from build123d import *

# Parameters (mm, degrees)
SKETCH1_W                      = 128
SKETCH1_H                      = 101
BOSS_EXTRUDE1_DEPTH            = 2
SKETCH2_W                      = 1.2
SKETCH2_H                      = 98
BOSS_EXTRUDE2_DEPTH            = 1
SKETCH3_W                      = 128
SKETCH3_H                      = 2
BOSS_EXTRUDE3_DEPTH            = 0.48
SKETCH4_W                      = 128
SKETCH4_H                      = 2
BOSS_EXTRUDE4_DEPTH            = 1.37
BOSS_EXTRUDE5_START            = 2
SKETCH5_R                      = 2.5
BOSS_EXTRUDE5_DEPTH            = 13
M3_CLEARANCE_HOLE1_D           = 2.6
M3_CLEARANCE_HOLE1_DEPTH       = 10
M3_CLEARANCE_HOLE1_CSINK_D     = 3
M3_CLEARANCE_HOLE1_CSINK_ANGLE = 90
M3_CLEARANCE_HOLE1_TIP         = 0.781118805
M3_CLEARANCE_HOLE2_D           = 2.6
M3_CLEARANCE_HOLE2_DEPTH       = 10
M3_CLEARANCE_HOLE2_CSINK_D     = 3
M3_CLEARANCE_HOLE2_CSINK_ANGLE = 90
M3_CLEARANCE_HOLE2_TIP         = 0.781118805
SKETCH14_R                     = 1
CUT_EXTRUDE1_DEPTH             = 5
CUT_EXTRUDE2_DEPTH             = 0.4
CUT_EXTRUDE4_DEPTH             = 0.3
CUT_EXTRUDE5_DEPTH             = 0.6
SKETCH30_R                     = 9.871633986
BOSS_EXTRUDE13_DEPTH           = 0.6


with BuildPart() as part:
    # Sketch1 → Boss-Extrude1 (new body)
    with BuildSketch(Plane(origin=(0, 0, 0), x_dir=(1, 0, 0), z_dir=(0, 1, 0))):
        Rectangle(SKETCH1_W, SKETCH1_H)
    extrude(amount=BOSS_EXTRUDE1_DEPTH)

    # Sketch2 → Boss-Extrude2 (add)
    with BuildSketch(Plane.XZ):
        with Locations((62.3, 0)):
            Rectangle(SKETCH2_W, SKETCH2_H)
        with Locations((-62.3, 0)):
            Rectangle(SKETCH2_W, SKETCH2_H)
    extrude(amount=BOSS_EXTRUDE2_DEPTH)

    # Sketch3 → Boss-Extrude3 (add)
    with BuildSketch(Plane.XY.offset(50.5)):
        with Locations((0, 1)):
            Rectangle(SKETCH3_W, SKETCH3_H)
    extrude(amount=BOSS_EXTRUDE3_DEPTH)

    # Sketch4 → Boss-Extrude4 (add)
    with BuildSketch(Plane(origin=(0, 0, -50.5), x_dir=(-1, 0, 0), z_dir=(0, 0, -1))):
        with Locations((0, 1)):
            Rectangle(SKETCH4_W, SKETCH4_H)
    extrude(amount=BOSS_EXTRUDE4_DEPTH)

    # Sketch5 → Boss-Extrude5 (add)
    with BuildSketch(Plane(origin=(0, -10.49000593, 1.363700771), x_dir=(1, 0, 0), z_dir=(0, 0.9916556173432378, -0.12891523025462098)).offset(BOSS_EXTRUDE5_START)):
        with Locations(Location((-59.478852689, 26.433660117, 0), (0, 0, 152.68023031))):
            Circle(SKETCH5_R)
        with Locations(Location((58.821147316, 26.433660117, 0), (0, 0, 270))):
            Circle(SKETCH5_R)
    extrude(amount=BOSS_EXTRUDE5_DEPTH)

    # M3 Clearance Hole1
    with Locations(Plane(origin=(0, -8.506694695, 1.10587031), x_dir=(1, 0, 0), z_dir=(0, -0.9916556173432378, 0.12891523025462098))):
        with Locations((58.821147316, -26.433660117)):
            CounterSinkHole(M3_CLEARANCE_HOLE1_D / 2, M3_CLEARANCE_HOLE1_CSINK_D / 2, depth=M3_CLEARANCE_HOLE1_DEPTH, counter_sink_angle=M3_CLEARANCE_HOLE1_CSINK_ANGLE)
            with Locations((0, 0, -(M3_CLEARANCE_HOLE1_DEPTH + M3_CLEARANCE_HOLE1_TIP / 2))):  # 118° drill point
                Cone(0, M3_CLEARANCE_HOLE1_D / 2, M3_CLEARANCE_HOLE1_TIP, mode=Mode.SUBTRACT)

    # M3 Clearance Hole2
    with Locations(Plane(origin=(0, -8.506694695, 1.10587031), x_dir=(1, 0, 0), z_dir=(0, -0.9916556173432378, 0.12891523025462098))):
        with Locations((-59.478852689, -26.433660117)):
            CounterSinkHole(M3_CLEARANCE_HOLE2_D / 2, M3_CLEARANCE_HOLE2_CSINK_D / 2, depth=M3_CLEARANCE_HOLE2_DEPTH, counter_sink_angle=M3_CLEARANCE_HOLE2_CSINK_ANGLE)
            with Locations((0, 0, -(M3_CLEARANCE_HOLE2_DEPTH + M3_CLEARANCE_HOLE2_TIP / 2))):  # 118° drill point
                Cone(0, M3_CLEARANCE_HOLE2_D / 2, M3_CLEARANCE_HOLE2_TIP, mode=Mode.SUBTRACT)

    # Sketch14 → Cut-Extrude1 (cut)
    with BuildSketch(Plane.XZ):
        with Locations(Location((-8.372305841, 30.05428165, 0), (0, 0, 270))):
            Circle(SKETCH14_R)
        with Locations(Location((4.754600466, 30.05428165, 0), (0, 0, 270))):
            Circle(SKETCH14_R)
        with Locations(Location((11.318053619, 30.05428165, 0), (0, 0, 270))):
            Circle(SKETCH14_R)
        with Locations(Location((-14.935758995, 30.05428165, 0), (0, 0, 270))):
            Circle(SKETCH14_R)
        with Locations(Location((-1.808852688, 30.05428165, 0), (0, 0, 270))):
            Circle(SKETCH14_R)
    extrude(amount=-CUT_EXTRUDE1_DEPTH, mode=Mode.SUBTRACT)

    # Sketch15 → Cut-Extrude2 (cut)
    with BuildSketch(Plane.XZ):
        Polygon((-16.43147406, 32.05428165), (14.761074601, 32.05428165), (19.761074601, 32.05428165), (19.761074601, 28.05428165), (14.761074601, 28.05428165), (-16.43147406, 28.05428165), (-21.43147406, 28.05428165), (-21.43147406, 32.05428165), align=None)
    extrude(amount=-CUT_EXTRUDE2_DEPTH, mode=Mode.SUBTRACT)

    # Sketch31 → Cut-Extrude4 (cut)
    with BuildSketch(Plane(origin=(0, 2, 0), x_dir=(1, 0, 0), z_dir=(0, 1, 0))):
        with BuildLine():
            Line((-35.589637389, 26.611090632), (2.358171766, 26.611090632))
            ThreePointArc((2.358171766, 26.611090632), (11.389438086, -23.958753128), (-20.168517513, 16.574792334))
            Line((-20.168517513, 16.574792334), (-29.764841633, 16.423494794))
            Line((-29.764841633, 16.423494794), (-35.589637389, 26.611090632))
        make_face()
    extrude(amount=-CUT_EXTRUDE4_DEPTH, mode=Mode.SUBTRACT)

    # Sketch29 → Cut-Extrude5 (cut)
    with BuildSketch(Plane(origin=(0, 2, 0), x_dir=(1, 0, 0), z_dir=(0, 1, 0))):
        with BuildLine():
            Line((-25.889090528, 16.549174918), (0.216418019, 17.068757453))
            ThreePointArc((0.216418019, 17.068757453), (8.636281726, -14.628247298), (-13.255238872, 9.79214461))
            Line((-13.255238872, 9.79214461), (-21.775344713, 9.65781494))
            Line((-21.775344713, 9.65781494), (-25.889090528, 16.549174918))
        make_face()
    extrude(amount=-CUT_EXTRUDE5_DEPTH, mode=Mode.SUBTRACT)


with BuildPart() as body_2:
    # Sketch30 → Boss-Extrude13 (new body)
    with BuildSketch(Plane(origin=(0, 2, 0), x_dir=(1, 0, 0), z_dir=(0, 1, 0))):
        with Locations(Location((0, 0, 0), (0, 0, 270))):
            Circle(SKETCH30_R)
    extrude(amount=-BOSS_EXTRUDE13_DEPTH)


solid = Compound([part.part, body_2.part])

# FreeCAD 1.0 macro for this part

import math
import FreeCAD as App
import Part
import Sketcher
from FreeCAD import Vector
Q = App.Units.Quantity

doc = App.newDocument("Part")
body = doc.addObject("PartDesign::Body", "Body")

# Sketch on XZ plane
sketch1 = doc.addObject("Sketcher::SketchObject", "Sketch")
body.addObject(sketch1)
sketch1.AttachmentSupport = (doc.XZ_Plane, [""])
sketch1.MapMode = "FlatFace"
sketch1.addGeometry(Part.LineSegment(Vector(-64, -50.5, 0), Vector(-64, 50.5, 0)), False)
sketch1.addGeometry(Part.LineSegment(Vector(-64, 50.5, 0), Vector(64, 50.5, 0)), False)
sketch1.addGeometry(Part.LineSegment(Vector(64, 50.5, 0), Vector(64, -50.5, 0)), False)
sketch1.addGeometry(Part.LineSegment(Vector(64, -50.5, 0), Vector(-64, -50.5, 0)), False)
sketch1.addConstraint(Sketcher.Constraint("Coincident", 0, 2, 1, 1))
sketch1.addConstraint(Sketcher.Constraint("Coincident", 1, 2, 2, 1))
sketch1.addConstraint(Sketcher.Constraint("Coincident", 2, 2, 3, 1))
sketch1.addConstraint(Sketcher.Constraint("Coincident", 3, 2, 0, 1))
sketch1.addConstraint(Sketcher.Constraint("Vertical", 0))
sketch1.addConstraint(Sketcher.Constraint("Horizontal", 1))
sketch1.addConstraint(Sketcher.Constraint("Vertical", 2))
sketch1.addConstraint(Sketcher.Constraint("Horizontal", 3))
sketch1.addConstraint(Sketcher.Constraint("Symmetric", 0, 2, 2, 2, -1, 1))
sketch1.addConstraint(Sketcher.Constraint("DistanceX", 1, 1, 1, 2, Q("128 mm")))
sketch1.addConstraint(Sketcher.Constraint("DistanceY", 0, 1, 0, 2, Q("101 mm")))
pad1 = doc.addObject("PartDesign::Pad", "Pad")
body.addObject(pad1)
pad1.Profile = sketch1
pad1.Length = 2
pad1.Reversed = True

# Sketch on XZ plane
sketch2 = doc.addObject("Sketcher::SketchObject", "Sketch001")
body.addObject(sketch2)
sketch2.AttachmentSupport = (doc.XZ_Plane, [""])
sketch2.MapMode = "FlatFace"
sketch2.addGeometry(Part.LineSegment(Vector(61.7, 49, 0), Vector(61.7, -49, 0)), False)
sketch2.addGeometry(Part.LineSegment(Vector(61.7, -49, 0), Vector(62.9, -49, 0)), False)
sketch2.addGeometry(Part.LineSegment(Vector(62.9, -49, 0), Vector(62.9, 49, 0)), False)
sketch2.addGeometry(Part.LineSegment(Vector(62.9, 49, 0), Vector(61.7, 49, 0)), False)
sketch2.addGeometry(Part.LineSegment(Vector(-62.9, 49, 0), Vector(-62.9, -49, 0)), False)
sketch2.addGeometry(Part.LineSegment(Vector(-62.9, -49, 0), Vector(-61.7, -49, 0)), False)
sketch2.addGeometry(Part.LineSegment(Vector(-61.7, -49, 0), Vector(-61.7, 49, 0)), False)
sketch2.addGeometry(Part.LineSegment(Vector(-61.7, 49, 0), Vector(-62.9, 49, 0)), False)
sketch2.addConstraint(Sketcher.Constraint("Coincident", 0, 2, 1, 1))
sketch2.addConstraint(Sketcher.Constraint("Coincident", 1, 2, 2, 1))
sketch2.addConstraint(Sketcher.Constraint("Coincident", 2, 2, 3, 1))
sketch2.addConstraint(Sketcher.Constraint("Coincident", 3, 2, 0, 1))
sketch2.addConstraint(Sketcher.Constraint("Coincident", 4, 2, 5, 1))
sketch2.addConstraint(Sketcher.Constraint("Coincident", 5, 2, 6, 1))
sketch2.addConstraint(Sketcher.Constraint("Coincident", 6, 2, 7, 1))
sketch2.addConstraint(Sketcher.Constraint("Coincident", 7, 2, 4, 1))
sketch2.addConstraint(Sketcher.Constraint("Vertical", 0))
sketch2.addConstraint(Sketcher.Constraint("Horizontal", 1))
sketch2.addConstraint(Sketcher.Constraint("Vertical", 2))
sketch2.addConstraint(Sketcher.Constraint("Horizontal", 3))
sketch2.addConstraint(Sketcher.Constraint("Vertical", 4))
sketch2.addConstraint(Sketcher.Constraint("Horizontal", 5))
sketch2.addConstraint(Sketcher.Constraint("Vertical", 6))
sketch2.addConstraint(Sketcher.Constraint("Horizontal", 7))
sketch2.addConstraint(Sketcher.Constraint("Symmetric", 2, 2, 4, 2, -1, 1))
sketch2.addConstraint(Sketcher.Constraint("Symmetric", 0, 2, 6, 2, -1, 1))
sketch2.addConstraint(Sketcher.Constraint("Horizontal", 1, 2, 4, 2))
sketch2.addConstraint(Sketcher.Constraint("DistanceY", 0, 2, 0, 1, Q("98 mm")))
sketch2.addConstraint(Sketcher.Constraint("DistanceX", 1, 1, 1, 2, Q("1.2 mm")))
sketch2.addConstraint(Sketcher.Constraint("DistanceX", -1, 1, 0, 2, Q("61.7 mm")))
pad2 = doc.addObject("PartDesign::Pad", "Pad001")
body.addObject(pad2)
pad2.Profile = sketch2
pad2.Length = 1

# Sketch on XY plane
sketch3 = doc.addObject("Sketcher::SketchObject", "Sketch002")
body.addObject(sketch3)
sketch3.AttachmentSupport = (doc.XY_Plane, [""])
sketch3.MapMode = "FlatFace"
sketch3.AttachmentOffset = App.Placement(Vector(0, 0, 50.5), App.Rotation())
sketch3.addGeometry(Part.LineSegment(Vector(-64, 2, 0), Vector(-64, 0, 0)), False)
sketch3.addGeometry(Part.LineSegment(Vector(-64, 0, 0), Vector(64, 0, 0)), False)
sketch3.addGeometry(Part.LineSegment(Vector(64, 0, 0), Vector(64, 2, 0)), False)
sketch3.addGeometry(Part.LineSegment(Vector(64, 2, 0), Vector(-64, 2, 0)), False)
sketch3.addConstraint(Sketcher.Constraint("Coincident", 0, 2, 1, 1))
sketch3.addConstraint(Sketcher.Constraint("Coincident", 1, 2, 2, 1))
sketch3.addConstraint(Sketcher.Constraint("Coincident", 2, 2, 3, 1))
sketch3.addConstraint(Sketcher.Constraint("Coincident", 3, 2, 0, 1))
sketch3.addConstraint(Sketcher.Constraint("Vertical", 0))
sketch3.addConstraint(Sketcher.Constraint("Horizontal", 1))
sketch3.addConstraint(Sketcher.Constraint("Vertical", 2))
sketch3.addConstraint(Sketcher.Constraint("Horizontal", 3))
sketch3.addConstraint(Sketcher.Constraint("Symmetric", 0, 2, 1, 2, -1, 1))
sketch3.addConstraint(Sketcher.Constraint("DistanceX", 1, 1, 1, 2, Q("128 mm")))
sketch3.addConstraint(Sketcher.Constraint("DistanceY", 0, 2, 0, 1, Q("2 mm")))
pad3 = doc.addObject("PartDesign::Pad", "Pad002")
body.addObject(pad3)
pad3.Profile = sketch3
pad3.Length = 0.48

# Sketch on XY plane
sketch4 = doc.addObject("Sketcher::SketchObject", "Sketch003")
body.addObject(sketch4)
sketch4.AttachmentSupport = (doc.XY_Plane, [""])
sketch4.MapMode = "FlatFace"
sketch4.AttachmentOffset = App.Placement(Vector(0, 0, -50.5), App.Rotation())
sketch4.addGeometry(Part.LineSegment(Vector(64, 2, 0), Vector(64, 0, 0)), False)
sketch4.addGeometry(Part.LineSegment(Vector(64, 0, 0), Vector(-64, 0, 0)), False)
sketch4.addGeometry(Part.LineSegment(Vector(-64, 0, 0), Vector(-64, 2, 0)), False)
sketch4.addGeometry(Part.LineSegment(Vector(-64, 2, 0), Vector(64, 2, 0)), False)
sketch4.addConstraint(Sketcher.Constraint("Coincident", 0, 2, 1, 1))
sketch4.addConstraint(Sketcher.Constraint("Coincident", 1, 2, 2, 1))
sketch4.addConstraint(Sketcher.Constraint("Coincident", 2, 2, 3, 1))
sketch4.addConstraint(Sketcher.Constraint("Coincident", 3, 2, 0, 1))
sketch4.addConstraint(Sketcher.Constraint("Vertical", 0))
sketch4.addConstraint(Sketcher.Constraint("Horizontal", 1))
sketch4.addConstraint(Sketcher.Constraint("Vertical", 2))
sketch4.addConstraint(Sketcher.Constraint("Horizontal", 3))
sketch4.addConstraint(Sketcher.Constraint("Symmetric", 0, 2, 1, 2, -1, 1))
sketch4.addConstraint(Sketcher.Constraint("DistanceX", 1, 2, 1, 1, Q("128 mm")))
sketch4.addConstraint(Sketcher.Constraint("DistanceY", 0, 2, 0, 1, Q("2 mm")))
pad4 = doc.addObject("PartDesign::Pad", "Pad003")
body.addObject(pad4)
pad4.Profile = sketch4
pad4.Length = 1.37
pad4.Reversed = True

# Sketch on an angled plane
sketch5 = doc.addObject("Sketcher::SketchObject", "Sketch004")
body.addObject(sketch5)
sketch5.Placement = App.Placement(Vector(0, -8.506695, 1.10587), App.Rotation(Vector(1, 0, 0), Vector(0, -0.12891523, -0.991655617), Vector(0, 0.991655617, -0.12891523), "ZXY"))
sketch5.addGeometry(Part.Circle(Vector(-59.478853, 26.43366, 0), Vector(0, 0, 1), 2.5), False)
sketch5.addGeometry(Part.Circle(Vector(58.821147, 26.43366, 0), Vector(0, 0, 1), 2.5), False)
sketch5.addConstraint(Sketcher.Constraint("Equal", 0, 1))
sketch5.addConstraint(Sketcher.Constraint("Horizontal", 0, 3, 1, 3))
sketch5.addConstraint(Sketcher.Constraint("Diameter", 0, Q("5 mm")))
sketch5.addConstraint(Sketcher.Constraint("DistanceX", 0, 3, 1, 3, Q("118.3 mm")))
sketch5.addConstraint(Sketcher.Constraint("DistanceY", -1, 1, 0, 3, Q("26.43366 mm")))
sketch5.addConstraint(Sketcher.Constraint("DistanceX", 0, 3, -1, 1, Q("59.478853 mm")))
pad5 = doc.addObject("PartDesign::Pad", "Pad004")
body.addObject(pad5)
pad5.Profile = sketch5
pad5.Length = 13

# Sketch on an angled plane
sketch6 = doc.addObject("Sketcher::SketchObject", "Sketch005")
body.addObject(sketch6)
sketch6.Placement = App.Placement(Vector(0, -8.506695, 1.10587), App.Rotation(Vector(1, 0, 0), Vector(0, 0.12891523, 0.991655617), Vector(0, -0.991655617, 0.12891523), "ZXY"))
sketch6.addGeometry(Part.Circle(Vector(58.821147, -26.43366, 0), Vector(0, 0, 1), 1.3), False)
sketch6.addConstraint(Sketcher.Constraint("Diameter", 0, Q("2.6 mm")))
sketch6.addConstraint(Sketcher.Constraint("DistanceY", 0, 3, -1, 1, Q("26.43366 mm")))
sketch6.addConstraint(Sketcher.Constraint("DistanceX", -1, 1, 0, 3, Q("58.821147 mm")))
doc.recompute()
hole = doc.addObject("PartDesign::Hole", "Hole")
body.addObject(hole)
hole.Profile = sketch6
hole.ThreadType = "None"
hole.Diameter = 2.6
hole.DepthType = "Dimension"
hole.Depth = 10
hole.DrillPoint = "Angled"
hole.DrillPointAngle = 118
hole.HoleCutType = "Countersink"
hole.HoleCutDiameter = 3
hole.HoleCutCountersinkAngle = 90

# Sketch on an angled plane
sketch7 = doc.addObject("Sketcher::SketchObject", "Sketch006")
body.addObject(sketch7)
sketch7.Placement = App.Placement(Vector(0, -8.506695, 1.10587), App.Rotation(Vector(1, 0, 0), Vector(0, 0.12891523, 0.991655617), Vector(0, -0.991655617, 0.12891523), "ZXY"))
sketch7.addGeometry(Part.Circle(Vector(-59.478853, -26.43366, 0), Vector(0, 0, 1), 1.3), False)
sketch7.addConstraint(Sketcher.Constraint("Diameter", 0, Q("2.6 mm")))
sketch7.addConstraint(Sketcher.Constraint("DistanceY", 0, 3, -1, 1, Q("26.43366 mm")))
sketch7.addConstraint(Sketcher.Constraint("DistanceX", 0, 3, -1, 1, Q("59.478853 mm")))
doc.recompute()
hole2 = doc.addObject("PartDesign::Hole", "Hole001")
body.addObject(hole2)
hole2.Profile = sketch7
hole2.ThreadType = "None"
hole2.Diameter = 2.6
hole2.DepthType = "Dimension"
hole2.Depth = 10
hole2.DrillPoint = "Angled"
hole2.DrillPointAngle = 118
hole2.HoleCutType = "Countersink"
hole2.HoleCutDiameter = 3
hole2.HoleCutCountersinkAngle = 90

# Sketch on XZ plane
sketch8 = doc.addObject("Sketcher::SketchObject", "Sketch007")
body.addObject(sketch8)
sketch8.AttachmentSupport = (doc.XZ_Plane, [""])
sketch8.MapMode = "FlatFace"
sketch8.addGeometry(Part.Circle(Vector(-8.372306, 30.054282, 0), Vector(0, 0, 1), 1), False)
sketch8.addGeometry(Part.Circle(Vector(4.7546, 30.054282, 0), Vector(0, 0, 1), 1), False)
sketch8.addGeometry(Part.Circle(Vector(11.318054, 30.054282, 0), Vector(0, 0, 1), 1), False)
sketch8.addGeometry(Part.Circle(Vector(-14.935759, 30.054282, 0), Vector(0, 0, 1), 1), False)
sketch8.addGeometry(Part.Circle(Vector(-1.808853, 30.054282, 0), Vector(0, 0, 1), 1), False)
sketch8.addConstraint(Sketcher.Constraint("Equal", 0, 1))
sketch8.addConstraint(Sketcher.Constraint("Equal", 1, 2))
sketch8.addConstraint(Sketcher.Constraint("Equal", 2, 3))
sketch8.addConstraint(Sketcher.Constraint("Equal", 3, 4))
sketch8.addConstraint(Sketcher.Constraint("Horizontal", 0, 3, 1, 3))
sketch8.addConstraint(Sketcher.Constraint("Horizontal", 1, 3, 2, 3))
sketch8.addConstraint(Sketcher.Constraint("Horizontal", 2, 3, 3, 3))
sketch8.addConstraint(Sketcher.Constraint("Horizontal", 3, 3, 4, 3))
sketch8.addConstraint(Sketcher.Constraint("Diameter", 0, Q("2 mm")))
sketch8.addConstraint(Sketcher.Constraint("DistanceX", -1, 1, 1, 3, Q("4.7546 mm")))
sketch8.addConstraint(Sketcher.Constraint("DistanceY", -1, 1, 0, 3, Q("30.054282 mm")))
sketch8.addConstraint(Sketcher.Constraint("DistanceX", 3, 3, -1, 1, Q("14.935759 mm")))
sketch8.addConstraint(Sketcher.Constraint("DistanceX", 0, 3, 2, 3, Q("19.690359 mm")))
sketch8.addConstraint(Sketcher.Constraint("DistanceX", 0, 3, -1, 1, Q("8.372306 mm")))
sketch8.addConstraint(Sketcher.Constraint("DistanceX", 4, 3, -1, 1, Q("1.808853 mm")))
pocket1 = doc.addObject("PartDesign::Pocket", "Pocket")
body.addObject(pocket1)
pocket1.Profile = sketch8
pocket1.Length = 5

# Sketch on XZ plane
sketch9 = doc.addObject("Sketcher::SketchObject", "Sketch008")
body.addObject(sketch9)
sketch9.AttachmentSupport = (doc.XZ_Plane, [""])
sketch9.MapMode = "FlatFace"
sketch9.addGeometry(Part.LineSegment(Vector(19.761075, 32.054282, 0), Vector(-21.431474, 32.054282, 0)), False)
sketch9.addGeometry(Part.LineSegment(Vector(-21.431474, 32.054282, 0), Vector(-21.431474, 28.054282, 0)), False)
sketch9.addGeometry(Part.LineSegment(Vector(-21.431474, 28.054282, 0), Vector(19.761075, 28.054282, 0)), False)
sketch9.addGeometry(Part.LineSegment(Vector(19.761075, 28.054282, 0), Vector(19.761075, 32.054282, 0)), False)
sketch9.addConstraint(Sketcher.Constraint("Coincident", 0, 2, 1, 1))
sketch9.addConstraint(Sketcher.Constraint("Coincident", 1, 2, 2, 1))
sketch9.addConstraint(Sketcher.Constraint("Coincident", 2, 2, 3, 1))
sketch9.addConstraint(Sketcher.Constraint("Coincident", 3, 2, 0, 1))
sketch9.addConstraint(Sketcher.Constraint("Horizontal", 0))
sketch9.addConstraint(Sketcher.Constraint("Vertical", 1))
sketch9.addConstraint(Sketcher.Constraint("Horizontal", 2))
sketch9.addConstraint(Sketcher.Constraint("Vertical", 3))
sketch9.addConstraint(Sketcher.Constraint("DistanceY", 1, 2, 1, 1, Q("4 mm")))
sketch9.addConstraint(Sketcher.Constraint("DistanceX", 0, 2, 0, 1, Q("41.192549 mm")))
sketch9.addConstraint(Sketcher.Constraint("DistanceY", -1, 1, 0, 2, Q("32.054282 mm")))
sketch9.addConstraint(Sketcher.Constraint("DistanceX", 0, 2, -1, 1, Q("21.431474 mm")))
pocket2 = doc.addObject("PartDesign::Pocket", "Pocket001")
body.addObject(pocket2)
pocket2.Profile = sketch9
pocket2.Length = 0.4

# Sketch on XZ plane
sketch10 = doc.addObject("Sketcher::SketchObject", "Sketch009")
body.addObject(sketch10)
sketch10.AttachmentSupport = (doc.XZ_Plane, [""])
sketch10.MapMode = "FlatFace"
sketch10.AttachmentOffset = App.Placement(Vector(0, 0, -2), App.Rotation())
sketch10.addGeometry(Part.LineSegment(Vector(2.358172, -26.611091, 0), Vector(-35.589637, -26.611091, 0)), False)
sketch10.addGeometry(Part.LineSegment(Vector(-35.589637, -26.611091, 0), Vector(-29.764842, -16.423495, 0)), False)
sketch10.addGeometry(Part.LineSegment(Vector(-29.764842, -16.423495, 0), Vector(-20.168518, -16.574792, 0)), False)
sketch10.addGeometry(Part.ArcOfCircle(Part.Circle(Vector(0.621726, -0.20961, 0), Vector(0, 0, 1), 26.458522), math.radians(-86.237032), math.radians(218.208294)), False)
sketch10.addConstraint(Sketcher.Constraint("Coincident", 0, 2, 1, 1))
sketch10.addConstraint(Sketcher.Constraint("Coincident", 1, 2, 2, 1))
sketch10.addConstraint(Sketcher.Constraint("Coincident", 2, 2, 3, 2))
sketch10.addConstraint(Sketcher.Constraint("Coincident", 3, 1, 0, 1))
sketch10.addConstraint(Sketcher.Constraint("Horizontal", 0))
sketch10.addConstraint(Sketcher.Constraint("Radius", 3, Q("26.458522 mm")))
sketch10.addConstraint(Sketcher.Constraint("DistanceX", 0, 2, 0, 1, Q("37.947809 mm")))
sketch10.addConstraint(Sketcher.Constraint("DistanceY", 0, 2, 2, 2, Q("10.036298 mm")))
sketch10.addConstraint(Sketcher.Constraint("Distance", 1, Q("11.735219 mm")))
sketch10.addConstraint(Sketcher.Constraint("DistanceY", 3, 3, -1, 1, Q("0.20961 mm")))
sketch10.addConstraint(Sketcher.Constraint("DistanceY", 0, 2, -1, 1, Q("26.611091 mm")))
sketch10.addConstraint(Sketcher.Constraint("DistanceX", 1, 2, -1, 1, Q("29.764842 mm")))
sketch10.addConstraint(Sketcher.Constraint("DistanceX", -1, 1, 3, 1, Q("2.358172 mm")))
pocket3 = doc.addObject("PartDesign::Pocket", "Pocket002")
body.addObject(pocket3)
pocket3.Profile = sketch10
pocket3.Length = 0.3
pocket3.Reversed = True

# Sketch on XZ plane
sketch11 = doc.addObject("Sketcher::SketchObject", "Sketch010")
body.addObject(sketch11)
sketch11.AttachmentSupport = (doc.XZ_Plane, [""])
sketch11.MapMode = "FlatFace"
sketch11.AttachmentOffset = App.Placement(Vector(0, 0, -2), App.Rotation())
sketch11.addGeometry(Part.LineSegment(Vector(0.216418, -17.068757, 0), Vector(-25.889091, -16.549175, 0)), False)
sketch11.addGeometry(Part.LineSegment(Vector(-25.889091, -16.549175, 0), Vector(-21.775345, -9.657815, 0)), False)
sketch11.addGeometry(Part.LineSegment(Vector(-21.775345, -9.657815, 0), Vector(-13.255239, -9.792145, 0)), False)
sketch11.addGeometry(Part.ArcOfCircle(Part.Circle(Vector(0.621726, -0.20961, 0), Vector(0, 0, 1), 16.864018), math.radians(-91.377173), math.radians(214.626449)), False)
sketch11.addConstraint(Sketcher.Constraint("Coincident", 0, 2, 1, 1))
sketch11.addConstraint(Sketcher.Constraint("Coincident", 1, 2, 2, 1))
sketch11.addConstraint(Sketcher.Constraint("Coincident", 2, 2, 3, 2))
sketch11.addConstraint(Sketcher.Constraint("Coincident", 3, 1, 0, 1))
sketch11.addConstraint(Sketcher.Constraint("Radius", 3, Q("16.864018 mm")))
sketch11.addConstraint(Sketcher.Constraint("Distance", 0, Q("26.110679 mm")))
sketch11.addConstraint(Sketcher.Constraint("DistanceY", 3, 3, -1, 1, Q("0.20961 mm")))
sketch11.addConstraint(Sketcher.Constraint("DistanceX", 0, 2, -1, 1, Q("25.889091 mm")))
sketch11.addConstraint(Sketcher.Constraint("DistanceX", 2, 2, -1, 1, Q("13.255239 mm")))
sketch11.addConstraint(Sketcher.Constraint("DistanceY", 0, 2, 1, 2, Q("6.89136 mm")))
sketch11.addConstraint(Sketcher.Constraint("DistanceX", 1, 2, 3, 3, Q("22.397071 mm")))
sketch11.addConstraint(Sketcher.Constraint("DistanceY", 2, 2, 1, 2, Q("0.13433 mm")))
sketch11.addConstraint(Sketcher.Constraint("Distance", 1, Q("8.025818 mm")))
pocket4 = doc.addObject("PartDesign::Pocket", "Pocket003")
body.addObject(pocket4)
pocket4.Profile = sketch11
pocket4.Length = 0.6
pocket4.Reversed = True
body2 = doc.addObject("PartDesign::Body", "Body001")

# Sketch on XZ plane
sketch12 = doc.addObject("Sketcher::SketchObject", "Sketch011")
body2.addObject(sketch12)
sketch12.AttachmentSupport = (doc.getObject("XZ_Plane001"), [""])
sketch12.MapMode = "FlatFace"
sketch12.AttachmentOffset = App.Placement(Vector(0, 0, -2), App.Rotation())
sketch12.addGeometry(Part.Circle(Vector(0, 0, 0), Vector(0, 0, 1), 9.871634), False)
sketch12.addConstraint(Sketcher.Constraint("Coincident", 0, 3, -1, 1))
sketch12.addConstraint(Sketcher.Constraint("Diameter", 0, Q("19.743268 mm")))
pad6 = doc.addObject("PartDesign::Pad", "Pad005")
body2.addObject(pad6)
pad6.Profile = sketch12
pad6.Length = 0.6

doc.recompute()
